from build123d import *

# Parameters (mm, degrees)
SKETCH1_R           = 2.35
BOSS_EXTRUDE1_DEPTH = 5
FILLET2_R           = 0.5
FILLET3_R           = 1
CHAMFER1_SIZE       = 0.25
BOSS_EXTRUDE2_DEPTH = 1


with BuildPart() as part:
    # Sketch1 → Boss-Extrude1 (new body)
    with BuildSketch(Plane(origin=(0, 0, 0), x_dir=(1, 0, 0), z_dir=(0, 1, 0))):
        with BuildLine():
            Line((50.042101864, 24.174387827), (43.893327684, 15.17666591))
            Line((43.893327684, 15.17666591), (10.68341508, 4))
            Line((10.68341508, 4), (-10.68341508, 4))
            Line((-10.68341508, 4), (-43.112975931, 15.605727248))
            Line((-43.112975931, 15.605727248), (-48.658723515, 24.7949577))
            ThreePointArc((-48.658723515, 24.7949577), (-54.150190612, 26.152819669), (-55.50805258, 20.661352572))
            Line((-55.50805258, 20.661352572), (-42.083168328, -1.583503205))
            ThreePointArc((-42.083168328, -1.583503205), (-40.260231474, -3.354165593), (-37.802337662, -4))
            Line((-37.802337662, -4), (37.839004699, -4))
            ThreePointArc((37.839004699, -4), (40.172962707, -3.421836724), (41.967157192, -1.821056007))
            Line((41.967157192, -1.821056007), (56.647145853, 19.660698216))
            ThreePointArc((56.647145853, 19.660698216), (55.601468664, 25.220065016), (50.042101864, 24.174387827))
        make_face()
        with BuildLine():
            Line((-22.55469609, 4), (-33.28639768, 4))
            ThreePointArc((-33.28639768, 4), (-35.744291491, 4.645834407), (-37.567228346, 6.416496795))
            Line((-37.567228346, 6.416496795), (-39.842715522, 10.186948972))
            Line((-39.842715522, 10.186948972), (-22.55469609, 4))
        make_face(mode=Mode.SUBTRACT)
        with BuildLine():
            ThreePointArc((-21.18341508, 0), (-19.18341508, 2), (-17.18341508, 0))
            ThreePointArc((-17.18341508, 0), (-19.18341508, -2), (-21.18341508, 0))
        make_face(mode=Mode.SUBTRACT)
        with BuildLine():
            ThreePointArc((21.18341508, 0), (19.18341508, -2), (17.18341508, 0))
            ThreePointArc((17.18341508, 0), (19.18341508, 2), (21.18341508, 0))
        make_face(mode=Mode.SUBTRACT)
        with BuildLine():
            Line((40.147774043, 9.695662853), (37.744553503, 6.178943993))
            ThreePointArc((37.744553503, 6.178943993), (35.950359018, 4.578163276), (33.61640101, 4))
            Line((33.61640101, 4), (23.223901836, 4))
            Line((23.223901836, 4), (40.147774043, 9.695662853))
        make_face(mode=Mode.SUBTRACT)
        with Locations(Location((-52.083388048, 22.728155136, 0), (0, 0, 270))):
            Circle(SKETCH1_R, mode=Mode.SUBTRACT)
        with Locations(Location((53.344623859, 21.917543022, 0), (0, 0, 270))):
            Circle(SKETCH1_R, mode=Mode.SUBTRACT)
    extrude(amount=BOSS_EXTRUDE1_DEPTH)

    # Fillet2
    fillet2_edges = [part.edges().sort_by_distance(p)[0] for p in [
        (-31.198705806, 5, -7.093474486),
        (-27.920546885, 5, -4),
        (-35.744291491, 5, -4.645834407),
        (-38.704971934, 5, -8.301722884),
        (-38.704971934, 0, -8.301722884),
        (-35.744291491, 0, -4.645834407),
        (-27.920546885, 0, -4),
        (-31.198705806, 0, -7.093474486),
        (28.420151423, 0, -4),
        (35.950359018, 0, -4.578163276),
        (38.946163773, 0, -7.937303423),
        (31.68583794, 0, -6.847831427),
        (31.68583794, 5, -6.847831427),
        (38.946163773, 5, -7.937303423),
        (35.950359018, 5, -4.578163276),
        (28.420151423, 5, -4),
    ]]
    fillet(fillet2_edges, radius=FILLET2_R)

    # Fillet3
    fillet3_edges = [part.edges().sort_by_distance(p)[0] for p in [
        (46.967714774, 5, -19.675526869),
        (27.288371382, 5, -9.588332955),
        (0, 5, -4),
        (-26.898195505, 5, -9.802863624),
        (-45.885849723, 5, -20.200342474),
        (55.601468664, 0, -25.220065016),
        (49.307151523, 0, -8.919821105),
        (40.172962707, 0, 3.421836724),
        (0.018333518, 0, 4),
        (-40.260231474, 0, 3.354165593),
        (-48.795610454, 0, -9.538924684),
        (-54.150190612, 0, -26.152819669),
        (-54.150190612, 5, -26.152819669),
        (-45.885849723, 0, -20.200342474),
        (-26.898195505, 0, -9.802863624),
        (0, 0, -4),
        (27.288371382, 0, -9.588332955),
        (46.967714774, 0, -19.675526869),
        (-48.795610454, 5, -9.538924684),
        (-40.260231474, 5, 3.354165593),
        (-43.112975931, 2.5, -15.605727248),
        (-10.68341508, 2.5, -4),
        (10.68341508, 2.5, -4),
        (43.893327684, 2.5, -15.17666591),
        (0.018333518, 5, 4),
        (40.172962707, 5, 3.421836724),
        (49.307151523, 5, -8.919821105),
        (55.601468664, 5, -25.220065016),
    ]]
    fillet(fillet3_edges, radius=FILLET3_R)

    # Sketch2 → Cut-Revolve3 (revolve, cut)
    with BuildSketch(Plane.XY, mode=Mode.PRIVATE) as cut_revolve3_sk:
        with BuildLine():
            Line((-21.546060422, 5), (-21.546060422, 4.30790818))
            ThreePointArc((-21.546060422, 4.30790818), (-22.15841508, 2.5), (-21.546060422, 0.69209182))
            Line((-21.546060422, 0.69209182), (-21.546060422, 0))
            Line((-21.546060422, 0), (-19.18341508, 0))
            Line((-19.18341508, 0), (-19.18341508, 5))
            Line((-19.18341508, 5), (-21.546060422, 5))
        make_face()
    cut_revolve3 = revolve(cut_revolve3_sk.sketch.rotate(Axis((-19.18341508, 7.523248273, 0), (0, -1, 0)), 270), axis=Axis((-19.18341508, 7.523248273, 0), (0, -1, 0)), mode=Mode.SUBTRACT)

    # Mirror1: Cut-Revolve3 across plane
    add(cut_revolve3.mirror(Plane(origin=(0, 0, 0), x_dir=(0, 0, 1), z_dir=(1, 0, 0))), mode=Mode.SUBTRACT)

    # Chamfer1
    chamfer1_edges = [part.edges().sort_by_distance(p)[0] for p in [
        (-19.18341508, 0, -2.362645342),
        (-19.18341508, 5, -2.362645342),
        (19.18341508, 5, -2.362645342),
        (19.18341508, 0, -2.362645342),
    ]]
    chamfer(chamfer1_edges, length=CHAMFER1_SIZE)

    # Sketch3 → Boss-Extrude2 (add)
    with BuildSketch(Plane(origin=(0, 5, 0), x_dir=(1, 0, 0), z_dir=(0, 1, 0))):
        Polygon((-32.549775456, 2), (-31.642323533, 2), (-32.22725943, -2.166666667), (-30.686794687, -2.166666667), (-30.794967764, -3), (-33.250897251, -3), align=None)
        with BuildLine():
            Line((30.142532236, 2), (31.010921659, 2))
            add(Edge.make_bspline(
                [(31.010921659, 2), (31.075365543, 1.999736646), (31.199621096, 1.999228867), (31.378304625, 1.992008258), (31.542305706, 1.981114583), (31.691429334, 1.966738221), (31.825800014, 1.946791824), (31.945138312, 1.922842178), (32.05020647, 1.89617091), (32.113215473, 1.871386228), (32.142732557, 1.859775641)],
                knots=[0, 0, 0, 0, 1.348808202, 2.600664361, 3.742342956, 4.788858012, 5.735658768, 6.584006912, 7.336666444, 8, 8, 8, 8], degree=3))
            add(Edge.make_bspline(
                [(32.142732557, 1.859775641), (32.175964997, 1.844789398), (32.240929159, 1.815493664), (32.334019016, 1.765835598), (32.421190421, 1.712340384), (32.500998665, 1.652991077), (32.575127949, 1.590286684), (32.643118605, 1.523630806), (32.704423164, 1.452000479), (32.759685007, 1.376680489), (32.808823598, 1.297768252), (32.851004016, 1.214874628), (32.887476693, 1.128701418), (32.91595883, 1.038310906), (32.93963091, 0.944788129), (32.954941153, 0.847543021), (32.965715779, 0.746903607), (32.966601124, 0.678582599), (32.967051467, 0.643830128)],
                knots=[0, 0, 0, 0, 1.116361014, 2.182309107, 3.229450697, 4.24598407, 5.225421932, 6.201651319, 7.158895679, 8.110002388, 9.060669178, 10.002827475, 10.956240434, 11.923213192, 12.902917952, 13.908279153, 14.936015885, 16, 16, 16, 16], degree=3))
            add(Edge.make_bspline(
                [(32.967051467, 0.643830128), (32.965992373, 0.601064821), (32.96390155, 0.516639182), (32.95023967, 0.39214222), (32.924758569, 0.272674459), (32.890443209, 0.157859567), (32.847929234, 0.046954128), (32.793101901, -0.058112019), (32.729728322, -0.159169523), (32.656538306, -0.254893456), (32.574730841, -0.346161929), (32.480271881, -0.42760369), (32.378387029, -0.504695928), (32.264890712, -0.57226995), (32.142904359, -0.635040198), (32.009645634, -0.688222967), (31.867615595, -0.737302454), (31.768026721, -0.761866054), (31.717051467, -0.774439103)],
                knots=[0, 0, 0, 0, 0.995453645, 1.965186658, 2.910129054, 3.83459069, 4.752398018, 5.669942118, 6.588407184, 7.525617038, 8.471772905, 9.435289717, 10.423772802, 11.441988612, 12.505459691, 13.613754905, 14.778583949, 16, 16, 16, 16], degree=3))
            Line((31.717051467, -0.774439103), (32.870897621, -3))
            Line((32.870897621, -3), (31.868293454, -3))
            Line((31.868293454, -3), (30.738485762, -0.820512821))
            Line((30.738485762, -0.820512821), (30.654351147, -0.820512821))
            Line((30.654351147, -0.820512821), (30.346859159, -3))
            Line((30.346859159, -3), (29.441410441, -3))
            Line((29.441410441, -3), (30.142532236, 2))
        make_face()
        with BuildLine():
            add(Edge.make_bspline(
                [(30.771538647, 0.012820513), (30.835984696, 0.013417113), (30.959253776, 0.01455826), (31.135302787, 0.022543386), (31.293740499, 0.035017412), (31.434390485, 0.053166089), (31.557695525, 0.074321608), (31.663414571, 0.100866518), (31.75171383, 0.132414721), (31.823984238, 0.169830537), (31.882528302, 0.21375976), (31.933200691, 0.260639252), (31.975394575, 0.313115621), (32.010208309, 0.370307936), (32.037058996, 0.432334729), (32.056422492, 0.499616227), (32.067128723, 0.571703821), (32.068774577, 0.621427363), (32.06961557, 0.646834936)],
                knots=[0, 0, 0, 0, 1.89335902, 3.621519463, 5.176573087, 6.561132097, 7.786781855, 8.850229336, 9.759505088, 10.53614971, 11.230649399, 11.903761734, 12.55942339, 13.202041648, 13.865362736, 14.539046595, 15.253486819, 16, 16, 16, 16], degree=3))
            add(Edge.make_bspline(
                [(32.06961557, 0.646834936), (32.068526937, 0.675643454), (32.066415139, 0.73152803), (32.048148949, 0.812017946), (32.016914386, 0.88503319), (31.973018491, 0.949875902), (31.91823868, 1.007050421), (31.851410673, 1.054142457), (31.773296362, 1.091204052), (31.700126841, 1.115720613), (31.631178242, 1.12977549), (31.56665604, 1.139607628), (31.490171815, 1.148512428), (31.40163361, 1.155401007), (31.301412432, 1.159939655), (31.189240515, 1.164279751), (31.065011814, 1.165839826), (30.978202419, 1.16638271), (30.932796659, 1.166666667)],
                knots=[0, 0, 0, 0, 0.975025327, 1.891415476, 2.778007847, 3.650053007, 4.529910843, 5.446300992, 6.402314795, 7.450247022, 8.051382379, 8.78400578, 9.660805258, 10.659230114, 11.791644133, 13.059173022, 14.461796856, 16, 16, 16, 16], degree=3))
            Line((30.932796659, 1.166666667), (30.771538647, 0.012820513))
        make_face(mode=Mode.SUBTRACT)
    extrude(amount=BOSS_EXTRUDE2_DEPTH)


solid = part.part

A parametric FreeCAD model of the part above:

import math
import FreeCAD as App
import Part
import Sketcher
from FreeCAD import Vector


def edges_at(feature, points):
    """Names of the edges that pass closest to the given points."""
    edges = feature.Shape.Edges
    near = lambda p: min(range(len(edges)), key=lambda i: edges[i].distToShape(Part.Vertex(*p))[0])
    return sorted({f"Edge{near(p) + 1}" for p in points})

doc = App.newDocument("Part")
body = doc.addObject("PartDesign::Body", "Body")

# Sketch on XZ plane
sketch1 = body.newObject("Sketcher::SketchObject", "Sketch")
sketch1.AttachmentSupport = (doc.getObject("XZ_Plane"), [""])
sketch1.MapMode = "FlatFace"
sketch1.addGeometry(Part.LineSegment(Vector(50, -24.2, 0), Vector(43.9, -15.2, 0)), False)
sketch1.addGeometry(Part.LineSegment(Vector(43.9, -15.2, 0), Vector(10.7, -4, 0)), False)
sketch1.addGeometry(Part.LineSegment(Vector(10.7, -4, 0), Vector(-10.7, -4, 0)), False)
sketch1.addGeometry(Part.LineSegment(Vector(-10.7, -4, 0), Vector(-43.1, -15.6, 0)), False)
sketch1.addGeometry(Part.LineSegment(Vector(-43.1, -15.6, 0), Vector(-48.7, -24.8, 0)), False)
sketch1.addGeometry(Part.ArcOfCircle(Part.Circle(Vector(-52.1, -22.7, 0), Vector(0, 0, 1), 4), math.radians(149), math.radians(329)), False)
sketch1.addGeometry(Part.LineSegment(Vector(-55.5, -20.7, 0), Vector(-42.1, 1.6, 0)), False)
sketch1.addGeometry(Part.ArcOfCircle(Part.Circle(Vector(-37.8, -1, 0), Vector(0, 0, 1), 5), math.radians(90), math.radians(149)), False)
sketch1.addGeometry(Part.LineSegment(Vector(-37.8, 4, 0), Vector(37.8, 4, 0)), False)
sketch1.addGeometry(Part.ArcOfCircle(Part.Circle(Vector(37.8, -1, 0), Vector(0, 0, 1), 5), math.radians(34), math.radians(90)), False)
sketch1.addGeometry(Part.LineSegment(Vector(42, 1.8, 0), Vector(56.6, -19.7, 0)), False)
sketch1.addGeometry(Part.ArcOfCircle(Part.Circle(Vector(53.3, -21.9, 0), Vector(0, 0, 1), 4), math.radians(-146), math.radians(34)), False)
sketch1.addGeometry(Part.Circle(Vector(-19.2, 0, 0), Vector(0, 0, 1), 2), False)
sketch1.addGeometry(Part.LineSegment(Vector(-39.8, -10.2, 0), Vector(-22.6, -4, 0)), False)
sketch1.addGeometry(Part.LineSegment(Vector(-22.6, -4, 0), Vector(-33.3, -4, 0)), False)
sketch1.addGeometry(Part.ArcOfCircle(Part.Circle(Vector(-33.3, -9, 0), Vector(0, 0, 1), 5), math.radians(90), math.radians(149)), False)
sketch1.addGeometry(Part.LineSegment(Vector(-37.6, -6.4, 0), Vector(-39.8, -10.2, 0)), False)
sketch1.addGeometry(Part.Circle(Vector(19.2, 0, 0), Vector(0, 0, 1), 2), False)
sketch1.addGeometry(Part.LineSegment(Vector(23.2, -4, 0), Vector(40.1, -9.7, 0)), False)
sketch1.addGeometry(Part.LineSegment(Vector(40.1, -9.7, 0), Vector(37.7, -6.2, 0)), False)
sketch1.addGeometry(Part.ArcOfCircle(Part.Circle(Vector(33.6, -9, 0), Vector(0, 0, 1), 5), math.radians(34), math.radians(90)), False)
sketch1.addGeometry(Part.LineSegment(Vector(33.6, -4, 0), Vector(23.2, -4, 0)), False)
sketch1.addGeometry(Part.Circle(Vector(-52.1, -22.7, 0), Vector(0, 0, 1), 2.4), False)
sketch1.addGeometry(Part.Circle(Vector(53.3, -21.9, 0), Vector(0, 0, 1), 2.4), False)
sketch1.addConstraint(Sketcher.Constraint("Coincident", 0, 2, 1, 1))
sketch1.addConstraint(Sketcher.Constraint("Coincident", 1, 2, 2, 1))
sketch1.addConstraint(Sketcher.Constraint("Coincident", 2, 2, 3, 1))
sketch1.addConstraint(Sketcher.Constraint("Coincident", 3, 2, 4, 1))
sketch1.addConstraint(Sketcher.Constraint("Tangent", 4, 2, 5, 2))
sketch1.addConstraint(Sketcher.Constraint("Tangent", 5, 1, 6, 1))
sketch1.addConstraint(Sketcher.Constraint("Tangent", 6, 2, 7, 2))
sketch1.addConstraint(Sketcher.Constraint("Tangent", 7, 1, 8, 1))
sketch1.addConstraint(Sketcher.Constraint("Tangent", 8, 2, 9, 2))
sketch1.addConstraint(Sketcher.Constraint("Tangent", 9, 1, 10, 1))
sketch1.addConstraint(Sketcher.Constraint("Tangent", 10, 2, 11, 2))
sketch1.addConstraint(Sketcher.Constraint("Tangent", 11, 1, 0, 1))
sketch1.addConstraint(Sketcher.Constraint("Coincident", 13, 2, 14, 1))
sketch1.addConstraint(Sketcher.Constraint("Tangent", 14, 2, 15, 1))
sketch1.addConstraint(Sketcher.Constraint("Tangent", 15, 2, 16, 1))
sketch1.addConstraint(Sketcher.Constraint("Coincident", 16, 2, 13, 1))
sketch1.addConstraint(Sketcher.Constraint("Coincident", 18, 2, 19, 1))
sketch1.addConstraint(Sketcher.Constraint("Tangent", 19, 2, 20, 1))
sketch1.addConstraint(Sketcher.Constraint("Tangent", 20, 2, 21, 1))
sketch1.addConstraint(Sketcher.Constraint("Coincident", 21, 2, 18, 1))
sketch1.addConstraint(Sketcher.Constraint("Horizontal", 2))
sketch1.addConstraint(Sketcher.Constraint("Horizontal", 8))
sketch1.addConstraint(Sketcher.Constraint("Horizontal", 14))
sketch1.addConstraint(Sketcher.Constraint("Horizontal", 21))
sketch1.addConstraint(Sketcher.Constraint("Coincident", 22, 3, 5, 3))
sketch1.addConstraint(Sketcher.Constraint("Coincident", 23, 3, 11, 3))
sketch1.addConstraint(Sketcher.Constraint("Equal", 7, 9))
sketch1.addConstraint(Sketcher.Constraint("Equal", 5, 11))
sketch1.addConstraint(Sketcher.Constraint("Equal", 9, 15))
sketch1.addConstraint(Sketcher.Constraint("Equal", 12, 17))
sketch1.addConstraint(Sketcher.Constraint("Equal", 15, 20))
sketch1.addConstraint(Sketcher.Constraint("Equal", 22, 23))
sketch1.addConstraint(Sketcher.Constraint("Symmetric", 12, 3, 17, 3, -1, 1))
sketch1.addConstraint(Sketcher.Constraint("PointOnObject", 12, 3, -1))
sketch1.addConstraint(Sketcher.Constraint("Parallel", 4, 6))
sketch1.addConstraint(Sketcher.Constraint("Parallel", 0, 10))
sketch1.addConstraint(Sketcher.Constraint("Parallel", 3, 13))
sketch1.addConstraint(Sketcher.Constraint("Parallel", 6, 16))
sketch1.addConstraint(Sketcher.Constraint("Parallel", 1, 18))
sketch1.addConstraint(Sketcher.Constraint("Parallel", 10, 19))
sketch1.addConstraint(Sketcher.Constraint("Horizontal", 15, 3, 20, 3))
sketch1.addConstraint(Sketcher.Constraint("Horizontal", 2, 2, 13, 2))
sketch1.addConstraint(Sketcher.Constraint("Diameter", 12, 4.0))
sketch1.addConstraint(Sketcher.Constraint("Radius", 5, 4.0))
sketch1.addConstraint(Sketcher.Constraint("Radius", 7, 5.0))
sketch1.addConstraint(Sketcher.Constraint("Diameter", 22, 4.7))
sketch1.addConstraint(Sketcher.Constraint("DistanceY", 7, 3, -1, 1, 1.0))
sketch1.addConstraint(Sketcher.Constraint("DistanceY", 15, 3, -1, 1, 9.0))
sketch1.addConstraint(Sketcher.Constraint("DistanceX", 1, 2, 17, 3, 8.5))
sketch1.addConstraint(Sketcher.Constraint("DistanceX", 12, 3, 2, 2, 8.5))
sketch1.addConstraint(Sketcher.Constraint("Distance", 0, 10.898001))
sketch1.addConstraint(Sketcher.Constraint("Distance", 4, 10.732999))
sketch1.addConstraint(Sketcher.Constraint("DistanceX", 14, 2, 14, 1, 10.731702))
sketch1.addConstraint(Sketcher.Constraint("DistanceX", 21, 2, 21, 1, 10.392499))
sketch1.addConstraint(Sketcher.Constraint("DistanceX", 2, 2, 2, 1, 21.36683))
sketch1.addConstraint(Sketcher.Constraint("DistanceX", -1, 1, 20, 3, 33.616401))
sketch1.addConstraint(Sketcher.Constraint("DistanceY", 10, 2, -1, 1, 19.660698))
sketch1.addConstraint(Sketcher.Constraint("DistanceX", -1, 1, 11, 1, 50.042102))
sketch1.addConstraint(Sketcher.Constraint("DistanceX", 15, 3, 20, 3, 66.902799))
sketch1.addConstraint(Sketcher.Constraint("Distance", 6, 25.981938))
sketch1.addConstraint(Sketcher.Constraint("Distance", 16, 4.403879))
sketch1.addConstraint(Sketcher.Constraint("DistanceX", 8, 1, 8, 2, 75.641342))
sketch1.addConstraint(Sketcher.Constraint("DistanceX", 5, 3, -1, 1, 52.083388))
pad1 = body.newObject("PartDesign::Pad", "Pad")
pad1.Profile = sketch1
pad1.Length = 5
pad1.Reversed = True
doc.recompute()

fillet = body.newObject("PartDesign::Fillet", "Fillet")
fillet.Base = (pad1, edges_at(pad1, [
    (-31.199, 5, -7.093),
    (-27.921, 5, -4),
    (-35.744, 5, -4.646),
    (-38.705, 5, -8.302),
    (-38.705, 0, -8.302),
    (-35.744, 0, -4.646),
    (-27.921, 0, -4),
    (-31.199, 0, -7.093),
    (28.42, 0, -4),
    (35.95, 0, -4.578),
    (38.946, 0, -7.937),
    (31.686, 0, -6.848),
    (31.686, 5, -6.848),
    (38.946, 5, -7.937),
    (35.95, 5, -4.578),
    (28.42, 5, -4),
]))
fillet.Radius = 0.5
doc.recompute()

fillet2 = body.newObject("PartDesign::Fillet", "Fillet001")
fillet2.Base = (fillet, edges_at(fillet, [
    (46.968, 5, -19.676),
    (27.288, 5, -9.588),
    (0, 5, -4),
    (-26.898, 5, -9.803),
    (-45.886, 5, -20.2),
    (55.601, 0, -25.22),
    (49.307, 0, -8.92),
    (40.173, 0, 3.422),
    (0.018, 0, 4),
    (-40.26, 0, 3.354),
    (-48.796, 0, -9.539),
    (-54.15, 0, -26.153),
    (-54.15, 5, -26.153),
    (-45.886, 0, -20.2),
    (-26.898, 0, -9.803),
    (0, 0, -4),
    (27.288, 0, -9.588),
    (46.968, 0, -19.676),
    (-48.796, 5, -9.539),
    (-40.26, 5, 3.354),
    (-43.113, 2.5, -15.606),
    (-10.683, 2.5, -4),
    (10.683, 2.5, -4),
    (43.893, 2.5, -15.177),
    (0.018, 5, 4),
    (40.173, 5, 3.422),
    (49.307, 5, -8.92),
    (55.601, 5, -25.22),
]))
fillet2.Radius = 1

# Sketch on XY plane
sketch2 = body.newObject("Sketcher::SketchObject", "Sketch001")
sketch2.AttachmentSupport = (doc.getObject("XY_Plane"), [""])
sketch2.MapMode = "FlatFace"
sketch2.addGeometry(Part.LineSegment(Vector(-21.5, 5, 0), Vector(-21.5, 4.3, 0)), False)
sketch2.addGeometry(Part.ArcOfCircle(Part.Circle(Vector(-19.2, 2.5, 0), Vector(0, 0, 1), 3), math.radians(143), math.radians(217)), False)
sketch2.addGeometry(Part.LineSegment(Vector(-21.5, 0.7, 0), Vector(-21.5, 0, 0)), False)
sketch2.addGeometry(Part.LineSegment(Vector(-21.5, 0, 0), Vector(-19.2, 0, 0)), False)
sketch2.addGeometry(Part.LineSegment(Vector(-19.2, 0, 0), Vector(-19.2, 5, 0)), False)
sketch2.addGeometry(Part.LineSegment(Vector(-19.2, 5, 0), Vector(-21.5, 5, 0)), False)
sketch2.addGeometry(Part.LineSegment(Vector(-19.2, 5, 0), Vector(-19.2, 0, 0)), True)  # axis
sketch2.addConstraint(Sketcher.Constraint("Coincident", 0, 2, 1, 1))
sketch2.addConstraint(Sketcher.Constraint("Coincident", 1, 2, 2, 1))
sketch2.addConstraint(Sketcher.Constraint("Coincident", 2, 2, 3, 1))
sketch2.addConstraint(Sketcher.Constraint("Coincident", 3, 2, 4, 1))
sketch2.addConstraint(Sketcher.Constraint("Coincident", 4, 2, 5, 1))
sketch2.addConstraint(Sketcher.Constraint("Coincident", 5, 2, 0, 1))
sketch2.addConstraint(Sketcher.Constraint("Vertical", 0))
sketch2.addConstraint(Sketcher.Constraint("Vertical", 2))
sketch2.addConstraint(Sketcher.Constraint("Horizontal", 3))
sketch2.addConstraint(Sketcher.Constraint("Vertical", 4))
sketch2.addConstraint(Sketcher.Constraint("Horizontal", 5))
sketch2.addConstraint(Sketcher.Constraint("Vertical", 6))
sketch2.addConstraint(Sketcher.Constraint("Coincident", 6, 1, 4, 2))
sketch2.addConstraint(Sketcher.Constraint("PointOnObject", 2, 2, -1))
sketch2.addConstraint(Sketcher.Constraint("PointOnObject", 6, 2, -1))
sketch2.addConstraint(Sketcher.Constraint("Vertical", 0, 2, 1, 2))
sketch2.addConstraint(Sketcher.Constraint("Vertical", 1, 3, 3, 2))
sketch2.addConstraint(Sketcher.Constraint("Equal", 0, 2))
sketch2.addConstraint(Sketcher.Constraint("DistanceY", 4, 1, 4, 2, 5.0))
sketch2.addConstraint(Sketcher.Constraint("Radius", 1, 2.975))
sketch2.addConstraint(Sketcher.Constraint("DistanceY", 0, 2, 0, 1, 0.692092))
sketch2.addConstraint(Sketcher.Constraint("DistanceX", 0, 2, -1, 1, 21.54606))
groove = body.newObject("PartDesign::Groove", "Groove")
groove.Profile = sketch2
groove.ReferenceAxis = (sketch2, ["Axis0"])
groove.Angle = 360
doc.recompute()

mirrored = body.newObject("PartDesign::Mirrored", "Mirrored")
mirrored.Originals = [groove]
mirrored.MirrorPlane = (doc.getObject("YZ_Plane"), [""])
body.Tip = mirrored
doc.recompute()

chamfer = body.newObject("PartDesign::Chamfer", "Chamfer")
chamfer.Base = (mirrored, edges_at(mirrored, [
    (-19.183, 0, -2.363),
    (-19.183, 5, -2.363),
    (19.183, 5, -2.363),
    (19.183, 0, -2.363),
]))
chamfer.Size = 0.25

# Sketch on XZ plane
sketch3 = body.newObject("Sketcher::SketchObject", "Sketch002")
sketch3.AttachmentSupport = (doc.getObject("XZ_Plane"), [""])
sketch3.MapMode = "FlatFace"
sketch3.AttachmentOffset = App.Placement(Vector(0, 0, -5), App.Rotation())
sketch3.addGeometry(Part.LineSegment(Vector(-31.642324, -2, 0), Vector(-32.549775, -2, 0)), False)
sketch3.addGeometry(Part.LineSegment(Vector(-32.549775, -2, 0), Vector(-33.250897, 3, 0)), False)
sketch3.addGeometry(Part.LineSegment(Vector(-33.250897, 3, 0), Vector(-30.794968, 3, 0)), False)
sketch3.addGeometry(Part.LineSegment(Vector(-30.794968, 3, 0), Vector(-30.686795, 2.166667, 0)), False)
sketch3.addGeometry(Part.LineSegment(Vector(-30.686795, 2.166667, 0), Vector(-32.227259, 2.166667, 0)), False)
sketch3.addGeometry(Part.LineSegment(Vector(-32.227259, 2.166667, 0), Vector(-31.642324, -2, 0)), False)
sketch3.addGeometry(Part.LineSegment(Vector(31.010922, -2, 0), Vector(30.142532, -2, 0)), False)
sketch3.addGeometry(Part.LineSegment(Vector(30.142532, -2, 0), Vector(29.44141, 3, 0)), False)
sketch3.addGeometry(Part.LineSegment(Vector(29.44141, 3, 0), Vector(30.346859, 3, 0)), False)
sketch3.addGeometry(Part.LineSegment(Vector(30.346859, 3, 0), Vector(30.654351, 0.820513, 0)), False)
sketch3.addGeometry(Part.LineSegment(Vector(30.654351, 0.820513, 0), Vector(30.738486, 0.820513, 0)), False)
sketch3.addGeometry(Part.LineSegment(Vector(30.738486, 0.820513, 0), Vector(31.868293, 3, 0)), False)
sketch3.addGeometry(Part.LineSegment(Vector(31.868293, 3, 0), Vector(32.870898, 3, 0)), False)
sketch3.addGeometry(Part.LineSegment(Vector(32.870898, 3, 0), Vector(31.717051, 0.774439, 0)), False)
sketch3.addGeometry(Part.BSplineCurve([Vector(32.967051, -0.64383, 0), Vector(32.965992, -0.601065, 0), Vector(32.963902, -0.516639, 0), Vector(32.95024, -0.392142, 0), Vector(32.924759, -0.272674, 0), Vector(32.890443, -0.15786, 0), Vector(32.847929, -0.046954, 0), Vector(32.793102, 0.058112, 0), Vector(32.729728, 0.15917, 0), Vector(32.656538, 0.254893, 0), Vector(32.574731, 0.346162, 0), Vector(32.480272, 0.427604, 0), Vector(32.378387, 0.504696, 0), Vector(32.264891, 0.57227, 0), Vector(32.142904, 0.63504, 0), Vector(32.009646, 0.688223, 0), Vector(31.867616, 0.737302, 0), Vector(31.768027, 0.761866, 0), Vector(31.717051, 0.774439, 0)], [4, 1, 1, 1, 1, 1, 1, 1, 1, 1, 1, 1, 1, 1, 1, 1, 4], [0, 0.995453645, 1.965186658, 2.910129054, 3.83459069, 4.752398018, 5.669942118, 6.588407184, 7.525617038, 8.471772905, 9.435289717, 10.423772802, 11.441988612, 12.505459691, 13.613754905, 14.778583949, 16], False, 3, [1, 1, 1, 1, 1, 1, 1, 1, 1, 1, 1, 1, 1, 1, 1, 1, 1, 1, 1], False), False)
sketch3.addGeometry(Part.BSplineCurve([Vector(32.142733, -1.859776, 0), Vector(32.175965, -1.844789, 0), Vector(32.240929, -1.815494, 0), Vector(32.334019, -1.765836, 0), Vector(32.42119, -1.71234, 0), Vector(32.500999, -1.652991, 0), Vector(32.575128, -1.590287, 0), Vector(32.643119, -1.523631, 0), Vector(32.704423, -1.452, 0), Vector(32.759685, -1.37668, 0), Vector(32.808824, -1.297768, 0), Vector(32.851004, -1.214875, 0), Vector(32.887477, -1.128701, 0), Vector(32.915959, -1.038311, 0), Vector(32.939631, -0.944788, 0), Vector(32.954941, -0.847543, 0), Vector(32.965716, -0.746904, 0), Vector(32.966601, -0.678583, 0), Vector(32.967051, -0.64383, 0)], [4, 1, 1, 1, 1, 1, 1, 1, 1, 1, 1, 1, 1, 1, 1, 1, 4], [0, 1.116361014, 2.182309107, 3.229450697, 4.24598407, 5.225421932, 6.201651319, 7.158895679, 8.110002388, 9.060669178, 10.002827475, 10.956240434, 11.923213192, 12.902917952, 13.908279153, 14.936015885, 16], False, 3, [1, 1, 1, 1, 1, 1, 1, 1, 1, 1, 1, 1, 1, 1, 1, 1, 1, 1, 1], False), False)
sketch3.addGeometry(Part.BSplineCurve([Vector(31.010922, -2, 0), Vector(31.075366, -1.999737, 0), Vector(31.199621, -1.999229, 0), Vector(31.378305, -1.992008, 0), Vector(31.542306, -1.981115, 0), Vector(31.691429, -1.966738, 0), Vector(31.8258, -1.946792, 0), Vector(31.945138, -1.922842, 0), Vector(32.050206, -1.896171, 0), Vector(32.113215, -1.871386, 0), Vector(32.142733, -1.859776, 0)], [4, 1, 1, 1, 1, 1, 1, 1, 4], [0, 1.348808202, 2.600664361, 3.742342956, 4.788858012, 5.735658768, 6.584006912, 7.336666444, 8], False, 3, [1, 1, 1, 1, 1, 1, 1, 1, 1, 1, 1], False), False)
sketch3.addGeometry(Part.LineSegment(Vector(30.771539, -0.012821, 0), Vector(30.932797, -1.166667, 0)), False)
sketch3.addGeometry(Part.BSplineCurve([Vector(32.069616, -0.646835, 0), Vector(32.068527, -0.675643, 0), Vector(32.066415, -0.731528, 0), Vector(32.048149, -0.812018, 0), Vector(32.016914, -0.885033, 0), Vector(31.973018, -0.949876, 0), Vector(31.918239, -1.00705, 0), Vector(31.851411, -1.054142, 0), Vector(31.773296, -1.091204, 0), Vector(31.700127, -1.115721, 0), Vector(31.631178, -1.129775, 0), Vector(31.566656, -1.139608, 0), Vector(31.490172, -1.148512, 0), Vector(31.401634, -1.155401, 0), Vector(31.301412, -1.15994, 0), Vector(31.189241, -1.16428, 0), Vector(31.065012, -1.16584, 0), Vector(30.978202, -1.166383, 0), Vector(30.932797, -1.166667, 0)], [4, 1, 1, 1, 1, 1, 1, 1, 1, 1, 1, 1, 1, 1, 1, 1, 4], [0, 0.975025327, 1.891415476, 2.778007847, 3.650053007, 4.529910843, 5.446300992, 6.402314795, 7.450247022, 8.051382379, 8.78400578, 9.660805258, 10.659230114, 11.791644133, 13.059173022, 14.461796856, 16], False, 3, [1, 1, 1, 1, 1, 1, 1, 1, 1, 1, 1, 1, 1, 1, 1, 1, 1, 1, 1], False), False)
sketch3.addGeometry(Part.BSplineCurve([Vector(30.771539, -0.012821, 0), Vector(30.835985, -0.013417, 0), Vector(30.959254, -0.014558, 0), Vector(31.135303, -0.022543, 0), Vector(31.29374, -0.035017, 0), Vector(31.43439, -0.053166, 0), Vector(31.557696, -0.074322, 0), Vector(31.663415, -0.100867, 0), Vector(31.751714, -0.132415, 0), Vector(31.823984, -0.169831, 0), Vector(31.882528, -0.21376, 0), Vector(31.933201, -0.260639, 0), Vector(31.975395, -0.313116, 0), Vector(32.010208, -0.370308, 0), Vector(32.037059, -0.432335, 0), Vector(32.056422, -0.499616, 0), Vector(32.067129, -0.571704, 0), Vector(32.068775, -0.621427, 0), Vector(32.069616, -0.646835, 0)], [4, 1, 1, 1, 1, 1, 1, 1, 1, 1, 1, 1, 1, 1, 1, 1, 4], [0, 1.89335902, 3.621519463, 5.176573087, 6.561132097, 7.786781855, 8.850229336, 9.759505088, 10.53614971, 11.230649399, 11.903761734, 12.55942339, 13.202041648, 13.865362736, 14.539046595, 15.253486819, 16], False, 3, [1, 1, 1, 1, 1, 1, 1, 1, 1, 1, 1, 1, 1, 1, 1, 1, 1, 1, 1], False), False)
sketch3.addConstraint(Sketcher.Constraint("Block", 14))
sketch3.addConstraint(Sketcher.Constraint("Block", 15))
sketch3.addConstraint(Sketcher.Constraint("Block", 16))
sketch3.addConstraint(Sketcher.Constraint("Block", 18))
sketch3.addConstraint(Sketcher.Constraint("Block", 19))
sketch3.addConstraint(Sketcher.Constraint("Coincident", 0, 2, 1, 1))
sketch3.addConstraint(Sketcher.Constraint("Coincident", 1, 2, 2, 1))
sketch3.addConstraint(Sketcher.Constraint("Coincident", 2, 2, 3, 1))
sketch3.addConstraint(Sketcher.Constraint("Coincident", 3, 2, 4, 1))
sketch3.addConstraint(Sketcher.Constraint("Coincident", 4, 2, 5, 1))
sketch3.addConstraint(Sketcher.Constraint("Coincident", 5, 2, 0, 1))
sketch3.addConstraint(Sketcher.Constraint("Coincident", 6, 2, 7, 1))
sketch3.addConstraint(Sketcher.Constraint("Coincident", 7, 2, 8, 1))
sketch3.addConstraint(Sketcher.Constraint("Coincident", 8, 2, 9, 1))
sketch3.addConstraint(Sketcher.Constraint("Coincident", 9, 2, 10, 1))
sketch3.addConstraint(Sketcher.Constraint("Coincident", 10, 2, 11, 1))
sketch3.addConstraint(Sketcher.Constraint("Coincident", 11, 2, 12, 1))
sketch3.addConstraint(Sketcher.Constraint("Coincident", 12, 2, 13, 1))
sketch3.addConstraint(Sketcher.Constraint("Coincident", 13, 2, 14, 2))
sketch3.addConstraint(Sketcher.Constraint("Coincident", 16, 1, 6, 1))
sketch3.addConstraint(Sketcher.Constraint("Coincident", 17, 2, 18, 2))
sketch3.addConstraint(Sketcher.Constraint("Coincident", 19, 1, 17, 1))
sketch3.addConstraint(Sketcher.Constraint("Horizontal", 0))
sketch3.addConstraint(Sketcher.Constraint("Horizontal", 2))
sketch3.addConstraint(Sketcher.Constraint("Horizontal", 4))
sketch3.addConstraint(Sketcher.Constraint("Horizontal", 6))
sketch3.addConstraint(Sketcher.Constraint("Horizontal", 8))
sketch3.addConstraint(Sketcher.Constraint("Horizontal", 10))
sketch3.addConstraint(Sketcher.Constraint("Horizontal", 12))
sketch3.addConstraint(Sketcher.Constraint("Parallel", 1, 7))
sketch3.addConstraint(Sketcher.Constraint("Horizontal", 5, 2, 6, 2))
sketch3.addConstraint(Sketcher.Constraint("Horizontal", 2, 2, 7, 2))
sketch3.addConstraint(Sketcher.Constraint("Horizontal", 8, 2, 11, 2))
sketch3.addConstraint(Sketcher.Constraint("DistanceY", -1, 1, 1, 2, 3.0))
sketch3.addConstraint(Sketcher.Constraint("DistanceX", 0, 2, 0, 1, 0.907452))
sketch3.addConstraint(Sketcher.Constraint("DistanceX", 2, 1, 2, 2, 2.455929))
sketch3.addConstraint(Sketcher.Constraint("DistanceX", 6, 2, 6, 1, 0.868389))
sketch3.addConstraint(Sketcher.Constraint("DistanceX", 8, 1, 8, 2, 0.905449))
sketch3.addConstraint(Sketcher.Constraint("DistanceX", 2, 2, 6, 2, 60.9375))
sketch3.addConstraint(Sketcher.Constraint("DistanceX", 9, 2, 13, 2, 1.0627))
sketch3.addConstraint(Sketcher.Constraint("Distance", 9, 2.201071))
sketch3.addConstraint(Sketcher.Constraint("Distance", 11, 2.45492))
sketch3.addConstraint(Sketcher.Constraint("DistanceX", 4, 2, 4, 1, 1.540465))
sketch3.addConstraint(Sketcher.Constraint("DistanceX", 10, 1, 10, 2, 0.084135))
sketch3.addConstraint(Sketcher.Constraint("DistanceX", 12, 1, 12, 2, 1.002604))
sketch3.addConstraint(Sketcher.Constraint("DistanceX", 4, 2, -1, 1, 32.227259))
sketch3.addConstraint(Sketcher.Constraint("DistanceX", -1, 1, 7, 2, 29.44141))
sketch3.addConstraint(Sketcher.Constraint("Distance", 3, 0.840325))
pad2 = body.newObject("PartDesign::Pad", "Pad001")
pad2.Profile = sketch3
pad2.Length = 1
pad2.Reversed = True

doc.recompute()
